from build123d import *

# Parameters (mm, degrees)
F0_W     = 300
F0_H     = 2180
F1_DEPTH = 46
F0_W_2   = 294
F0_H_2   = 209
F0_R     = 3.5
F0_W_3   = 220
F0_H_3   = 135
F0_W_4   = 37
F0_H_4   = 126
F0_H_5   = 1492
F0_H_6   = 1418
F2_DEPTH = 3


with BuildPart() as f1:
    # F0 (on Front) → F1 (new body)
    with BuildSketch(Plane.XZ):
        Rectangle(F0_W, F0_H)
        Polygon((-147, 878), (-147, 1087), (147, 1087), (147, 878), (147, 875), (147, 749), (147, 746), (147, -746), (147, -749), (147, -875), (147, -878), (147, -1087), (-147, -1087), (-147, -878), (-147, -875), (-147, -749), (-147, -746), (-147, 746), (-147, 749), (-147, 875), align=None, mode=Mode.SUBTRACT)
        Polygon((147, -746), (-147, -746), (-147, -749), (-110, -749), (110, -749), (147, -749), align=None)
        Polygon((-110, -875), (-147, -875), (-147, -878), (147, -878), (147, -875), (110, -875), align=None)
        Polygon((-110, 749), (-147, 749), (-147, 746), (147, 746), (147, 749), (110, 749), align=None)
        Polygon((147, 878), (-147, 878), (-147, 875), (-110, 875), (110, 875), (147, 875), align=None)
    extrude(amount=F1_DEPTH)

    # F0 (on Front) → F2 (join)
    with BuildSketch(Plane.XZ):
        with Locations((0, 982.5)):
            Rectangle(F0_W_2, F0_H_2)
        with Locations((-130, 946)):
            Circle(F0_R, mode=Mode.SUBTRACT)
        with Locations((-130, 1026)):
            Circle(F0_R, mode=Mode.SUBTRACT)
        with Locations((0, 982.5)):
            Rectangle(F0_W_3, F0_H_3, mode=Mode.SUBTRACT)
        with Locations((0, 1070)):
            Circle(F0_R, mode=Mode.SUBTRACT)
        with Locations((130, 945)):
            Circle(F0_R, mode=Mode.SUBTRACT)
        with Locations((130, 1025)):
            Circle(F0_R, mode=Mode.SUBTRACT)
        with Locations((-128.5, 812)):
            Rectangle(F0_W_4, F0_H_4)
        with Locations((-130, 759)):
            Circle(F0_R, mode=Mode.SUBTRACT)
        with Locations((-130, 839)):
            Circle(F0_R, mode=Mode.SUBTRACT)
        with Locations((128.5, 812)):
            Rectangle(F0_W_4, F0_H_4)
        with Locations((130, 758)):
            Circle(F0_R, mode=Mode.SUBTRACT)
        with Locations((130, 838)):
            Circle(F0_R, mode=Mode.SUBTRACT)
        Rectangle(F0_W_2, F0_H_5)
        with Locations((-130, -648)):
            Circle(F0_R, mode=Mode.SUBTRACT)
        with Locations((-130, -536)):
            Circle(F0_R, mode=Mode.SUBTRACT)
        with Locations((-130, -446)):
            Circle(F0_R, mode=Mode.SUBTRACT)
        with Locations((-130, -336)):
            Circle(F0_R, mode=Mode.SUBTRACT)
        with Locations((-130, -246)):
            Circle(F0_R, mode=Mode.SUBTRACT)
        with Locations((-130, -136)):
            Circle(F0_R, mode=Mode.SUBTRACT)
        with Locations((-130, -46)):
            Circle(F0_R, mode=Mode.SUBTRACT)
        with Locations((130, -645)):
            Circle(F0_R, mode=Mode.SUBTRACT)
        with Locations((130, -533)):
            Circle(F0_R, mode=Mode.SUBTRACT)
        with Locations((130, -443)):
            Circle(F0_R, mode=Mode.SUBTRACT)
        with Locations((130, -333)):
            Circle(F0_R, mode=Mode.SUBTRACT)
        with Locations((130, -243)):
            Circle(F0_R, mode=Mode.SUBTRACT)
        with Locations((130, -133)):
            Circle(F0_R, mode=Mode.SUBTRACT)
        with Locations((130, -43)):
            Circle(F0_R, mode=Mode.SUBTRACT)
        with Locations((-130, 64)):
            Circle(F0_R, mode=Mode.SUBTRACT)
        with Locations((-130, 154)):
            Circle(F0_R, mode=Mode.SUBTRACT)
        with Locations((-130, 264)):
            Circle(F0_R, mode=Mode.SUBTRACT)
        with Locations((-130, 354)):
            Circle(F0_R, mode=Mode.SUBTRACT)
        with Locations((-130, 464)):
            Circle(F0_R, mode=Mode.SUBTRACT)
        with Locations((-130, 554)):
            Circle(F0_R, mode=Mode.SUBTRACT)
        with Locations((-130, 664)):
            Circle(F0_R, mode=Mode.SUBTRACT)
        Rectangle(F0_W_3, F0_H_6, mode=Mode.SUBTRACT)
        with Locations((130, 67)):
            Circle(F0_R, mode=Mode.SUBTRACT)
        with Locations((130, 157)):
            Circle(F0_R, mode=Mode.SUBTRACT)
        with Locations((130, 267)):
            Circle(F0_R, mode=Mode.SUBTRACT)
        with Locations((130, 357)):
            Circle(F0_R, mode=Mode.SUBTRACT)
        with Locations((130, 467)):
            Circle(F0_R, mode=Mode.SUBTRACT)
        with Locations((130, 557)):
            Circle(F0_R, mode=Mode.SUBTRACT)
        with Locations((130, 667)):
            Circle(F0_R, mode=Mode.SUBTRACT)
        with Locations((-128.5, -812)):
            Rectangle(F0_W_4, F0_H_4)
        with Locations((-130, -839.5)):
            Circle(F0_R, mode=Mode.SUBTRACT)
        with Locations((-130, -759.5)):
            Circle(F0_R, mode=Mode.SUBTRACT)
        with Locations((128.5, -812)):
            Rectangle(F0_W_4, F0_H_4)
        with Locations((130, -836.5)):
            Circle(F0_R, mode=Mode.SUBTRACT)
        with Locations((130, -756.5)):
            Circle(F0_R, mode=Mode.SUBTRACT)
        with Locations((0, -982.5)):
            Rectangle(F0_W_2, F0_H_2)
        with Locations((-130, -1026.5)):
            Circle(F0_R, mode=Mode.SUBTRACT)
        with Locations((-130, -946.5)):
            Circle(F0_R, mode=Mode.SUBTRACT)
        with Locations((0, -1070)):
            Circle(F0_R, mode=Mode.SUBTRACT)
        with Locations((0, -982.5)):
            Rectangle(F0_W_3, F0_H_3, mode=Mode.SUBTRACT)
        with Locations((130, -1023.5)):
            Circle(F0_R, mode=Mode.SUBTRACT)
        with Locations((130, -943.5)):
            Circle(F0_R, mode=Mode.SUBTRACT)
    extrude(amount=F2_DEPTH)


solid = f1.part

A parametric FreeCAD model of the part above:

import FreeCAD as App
import Part
import Sketcher

V = App.Vector

doc = App.newDocument("Part")
body = doc.addObject("PartDesign::Body", "Body")

# Sketch on XZ plane
sketch1 = doc.addObject("Sketcher::SketchObject", "Sketch")
body.addObject(sketch1)
sketch1.AttachmentSupport = (doc.XZ_Plane, [""])
sketch1.MapMode = "FlatFace"
sketch1.addGeometry(Part.LineSegment(V(-150, 1090, 0), V(-150, -1090, 0)), False)
sketch1.addGeometry(Part.LineSegment(V(-150, -1090, 0), V(150, -1090, 0)), False)
sketch1.addGeometry(Part.LineSegment(V(150, -1090, 0), V(150, 1090, 0)), False)
sketch1.addGeometry(Part.LineSegment(V(150, 1090, 0), V(-150, 1090, 0)), False)
sketch1.addGeometry(Part.LineSegment(V(-147, -1087, 0), V(-147, -878, 0)), False)
sketch1.addGeometry(Part.LineSegment(V(-147, -878, 0), V(147, -878, 0)), False)
sketch1.addGeometry(Part.LineSegment(V(147, -878, 0), V(147, -1087, 0)), False)
sketch1.addGeometry(Part.LineSegment(V(147, -1087, 0), V(-147, -1087, 0)), False)
sketch1.addGeometry(Part.LineSegment(V(-147, -875, 0), V(-147, -749, 0)), False)
sketch1.addGeometry(Part.LineSegment(V(-147, -749, 0), V(147, -749, 0)), False)
sketch1.addGeometry(Part.LineSegment(V(147, -749, 0), V(147, -875, 0)), False)
sketch1.addGeometry(Part.LineSegment(V(147, -875, 0), V(-147, -875, 0)), False)
sketch1.addGeometry(Part.LineSegment(V(-147, -746, 0), V(-147, 746, 0)), False)
sketch1.addGeometry(Part.LineSegment(V(-147, 746, 0), V(147, 746, 0)), False)
sketch1.addGeometry(Part.LineSegment(V(147, 746, 0), V(147, -746, 0)), False)
sketch1.addGeometry(Part.LineSegment(V(147, -746, 0), V(-147, -746, 0)), False)
sketch1.addGeometry(Part.LineSegment(V(-147, 749, 0), V(-147, 875, 0)), False)
sketch1.addGeometry(Part.LineSegment(V(-147, 875, 0), V(147, 875, 0)), False)
sketch1.addGeometry(Part.LineSegment(V(147, 875, 0), V(147, 749, 0)), False)
sketch1.addGeometry(Part.LineSegment(V(147, 749, 0), V(-147, 749, 0)), False)
sketch1.addGeometry(Part.LineSegment(V(-147, 878, 0), V(-147, 1087, 0)), False)
sketch1.addGeometry(Part.LineSegment(V(-147, 1087, 0), V(147, 1087, 0)), False)
sketch1.addGeometry(Part.LineSegment(V(147, 1087, 0), V(147, 878, 0)), False)
sketch1.addGeometry(Part.LineSegment(V(147, 878, 0), V(-147, 878, 0)), False)
sketch1.addConstraint(Sketcher.Constraint("Coincident", 0, 2, 1, 1))
sketch1.addConstraint(Sketcher.Constraint("Coincident", 1, 2, 2, 1))
sketch1.addConstraint(Sketcher.Constraint("Coincident", 2, 2, 3, 1))
sketch1.addConstraint(Sketcher.Constraint("Coincident", 3, 2, 0, 1))
sketch1.addConstraint(Sketcher.Constraint("Coincident", 4, 2, 5, 1))
sketch1.addConstraint(Sketcher.Constraint("Coincident", 5, 2, 6, 1))
sketch1.addConstraint(Sketcher.Constraint("Coincident", 6, 2, 7, 1))
sketch1.addConstraint(Sketcher.Constraint("Coincident", 7, 2, 4, 1))
sketch1.addConstraint(Sketcher.Constraint("Coincident", 8, 2, 9, 1))
sketch1.addConstraint(Sketcher.Constraint("Coincident", 9, 2, 10, 1))
sketch1.addConstraint(Sketcher.Constraint("Coincident", 10, 2, 11, 1))
sketch1.addConstraint(Sketcher.Constraint("Coincident", 11, 2, 8, 1))
sketch1.addConstraint(Sketcher.Constraint("Coincident", 12, 2, 13, 1))
sketch1.addConstraint(Sketcher.Constraint("Coincident", 13, 2, 14, 1))
sketch1.addConstraint(Sketcher.Constraint("Coincident", 14, 2, 15, 1))
sketch1.addConstraint(Sketcher.Constraint("Coincident", 15, 2, 12, 1))
sketch1.addConstraint(Sketcher.Constraint("Coincident", 16, 2, 17, 1))
sketch1.addConstraint(Sketcher.Constraint("Coincident", 17, 2, 18, 1))
sketch1.addConstraint(Sketcher.Constraint("Coincident", 18, 2, 19, 1))
sketch1.addConstraint(Sketcher.Constraint("Coincident", 19, 2, 16, 1))
sketch1.addConstraint(Sketcher.Constraint("Coincident", 20, 2, 21, 1))
sketch1.addConstraint(Sketcher.Constraint("Coincident", 21, 2, 22, 1))
sketch1.addConstraint(Sketcher.Constraint("Coincident", 22, 2, 23, 1))
sketch1.addConstraint(Sketcher.Constraint("Coincident", 23, 2, 20, 1))
sketch1.addConstraint(Sketcher.Constraint("Vertical", 0))
sketch1.addConstraint(Sketcher.Constraint("Horizontal", 1))
sketch1.addConstraint(Sketcher.Constraint("Vertical", 2))
sketch1.addConstraint(Sketcher.Constraint("Horizontal", 3))
sketch1.addConstraint(Sketcher.Constraint("Vertical", 4))
sketch1.addConstraint(Sketcher.Constraint("Horizontal", 5))
sketch1.addConstraint(Sketcher.Constraint("Vertical", 6))
sketch1.addConstraint(Sketcher.Constraint("Horizontal", 7))
sketch1.addConstraint(Sketcher.Constraint("Vertical", 8))
sketch1.addConstraint(Sketcher.Constraint("Horizontal", 9))
sketch1.addConstraint(Sketcher.Constraint("Vertical", 10))
sketch1.addConstraint(Sketcher.Constraint("Horizontal", 11))
sketch1.addConstraint(Sketcher.Constraint("Vertical", 12))
sketch1.addConstraint(Sketcher.Constraint("Horizontal", 13))
sketch1.addConstraint(Sketcher.Constraint("Vertical", 14))
sketch1.addConstraint(Sketcher.Constraint("Horizontal", 15))
sketch1.addConstraint(Sketcher.Constraint("Vertical", 16))
sketch1.addConstraint(Sketcher.Constraint("Horizontal", 17))
sketch1.addConstraint(Sketcher.Constraint("Vertical", 18))
sketch1.addConstraint(Sketcher.Constraint("Horizontal", 19))
sketch1.addConstraint(Sketcher.Constraint("Vertical", 20))
sketch1.addConstraint(Sketcher.Constraint("Horizontal", 21))
sketch1.addConstraint(Sketcher.Constraint("Vertical", 22))
sketch1.addConstraint(Sketcher.Constraint("Horizontal", 23))
sketch1.addConstraint(Sketcher.Constraint("Symmetric", 0, 2, 2, 2, -1, 1))
sketch1.addConstraint(Sketcher.Constraint("Symmetric", 12, 2, 14, 2, -1, 1))
sketch1.addConstraint(Sketcher.Constraint("Symmetric", 10, 2, 16, 2, -1, 1))
sketch1.addConstraint(Sketcher.Constraint("Symmetric", 8, 2, 18, 2, -1, 1))
sketch1.addConstraint(Sketcher.Constraint("Symmetric", 6, 2, 20, 2, -1, 1))
sketch1.addConstraint(Sketcher.Constraint("Symmetric", 4, 2, 22, 2, -1, 1))
sketch1.addConstraint(Sketcher.Constraint("Vertical", 7, 2, 8, 2))
sketch1.addConstraint(Sketcher.Constraint("Vertical", 6, 2, 9, 2))
sketch1.addConstraint(Sketcher.Constraint("Vertical", 11, 2, 12, 2))
sketch1.addConstraint(Sketcher.Constraint("Vertical", 10, 2, 13, 2))
sketch1.addConstraint(Sketcher.Constraint("DistanceX", 1, 1, 1, 2, 300.0))
sketch1.addConstraint(Sketcher.Constraint("DistanceX", 5, 1, 5, 2, 294.0))
sketch1.addConstraint(Sketcher.Constraint("DistanceY", 0, 2, 0, 1, 2180.0))
sketch1.addConstraint(Sketcher.Constraint("DistanceY", 4, 1, 4, 2, 209.0))
sketch1.addConstraint(Sketcher.Constraint("DistanceY", 8, 1, 8, 2, 126.0))
sketch1.addConstraint(Sketcher.Constraint("DistanceY", 12, 1, 12, 2, 1492.0))
sketch1.addConstraint(Sketcher.Constraint("DistanceY", 4, 2, -1, 1, 878.0))
sketch1.addConstraint(Sketcher.Constraint("DistanceY", 8, 2, -1, 1, 749.0))
pad1 = doc.addObject("PartDesign::Pad", "Pad")
body.addObject(pad1)
pad1.Profile = sketch1
pad1.Length = 46

# Sketch on XZ plane
sketch2 = doc.addObject("Sketcher::SketchObject", "Sketch001")
body.addObject(sketch2)
sketch2.AttachmentSupport = (doc.XZ_Plane, [""])
sketch2.MapMode = "FlatFace"
sketch2.addGeometry(Part.LineSegment(V(-147, 1087, 0), V(-147, 878, 0)), False)
sketch2.addGeometry(Part.LineSegment(V(-147, 878, 0), V(147, 878, 0)), False)
sketch2.addGeometry(Part.LineSegment(V(147, 878, 0), V(147, 1087, 0)), False)
sketch2.addGeometry(Part.LineSegment(V(147, 1087, 0), V(-147, 1087, 0)), False)
sketch2.addGeometry(Part.Circle(V(-130, 946, 0), V(0, 0, 1), 3.5), False)
sketch2.addGeometry(Part.Circle(V(130, 945, 0), V(0, 0, 1), 3.5), False)
sketch2.addGeometry(Part.LineSegment(V(110, 915, 0), V(-110, 915, 0)), False)
sketch2.addGeometry(Part.LineSegment(V(-110, 915, 0), V(-110, 1050, 0)), False)
sketch2.addGeometry(Part.LineSegment(V(-110, 1050, 0), V(110, 1050, 0)), False)
sketch2.addGeometry(Part.LineSegment(V(110, 1050, 0), V(110, 915, 0)), False)
sketch2.addGeometry(Part.Circle(V(-130, 1026, 0), V(0, 0, 1), 3.5), False)
sketch2.addGeometry(Part.Circle(V(130, 1025, 0), V(0, 0, 1), 3.5), False)
sketch2.addGeometry(Part.Circle(V(0, 1070, 0), V(0, 0, 1), 3.5), False)
sketch2.addGeometry(Part.LineSegment(V(-147, 875, 0), V(-147, 749, 0)), False)
sketch2.addGeometry(Part.LineSegment(V(-147, 749, 0), V(-110, 749, 0)), False)
sketch2.addGeometry(Part.LineSegment(V(-110, 749, 0), V(-110, 875, 0)), False)
sketch2.addGeometry(Part.LineSegment(V(-110, 875, 0), V(-147, 875, 0)), False)
sketch2.addGeometry(Part.Circle(V(-130, 759, 0), V(0, 0, 1), 3.5), False)
sketch2.addGeometry(Part.Circle(V(-130, 839, 0), V(0, 0, 1), 3.5), False)
sketch2.addGeometry(Part.LineSegment(V(110, 875, 0), V(110, 749, 0)), False)
sketch2.addGeometry(Part.LineSegment(V(110, 749, 0), V(147, 749, 0)), False)
sketch2.addGeometry(Part.LineSegment(V(147, 749, 0), V(147, 875, 0)), False)
sketch2.addGeometry(Part.LineSegment(V(147, 875, 0), V(110, 875, 0)), False)
sketch2.addGeometry(Part.Circle(V(130, 758, 0), V(0, 0, 1), 3.5), False)
sketch2.addGeometry(Part.Circle(V(130, 838, 0), V(0, 0, 1), 3.5), False)
sketch2.addGeometry(Part.LineSegment(V(-147, 746, 0), V(-147, -746, 0)), False)
sketch2.addGeometry(Part.LineSegment(V(-147, -746, 0), V(147, -746, 0)), False)
sketch2.addGeometry(Part.LineSegment(V(147, -746, 0), V(147, 746, 0)), False)
sketch2.addGeometry(Part.LineSegment(V(147, 746, 0), V(-147, 746, 0)), False)
sketch2.addGeometry(Part.Circle(V(-130, -648, 0), V(0, 0, 1), 3.5), False)
sketch2.addGeometry(Part.Circle(V(-130, -536, 0), V(0, 0, 1), 3.5), False)
sketch2.addGeometry(Part.Circle(V(-130, -446, 0), V(0, 0, 1), 3.5), False)
sketch2.addGeometry(Part.Circle(V(-130, -336, 0), V(0, 0, 1), 3.5), False)
sketch2.addGeometry(Part.Circle(V(-130, -246, 0), V(0, 0, 1), 3.5), False)
sketch2.addGeometry(Part.Circle(V(-130, -136, 0), V(0, 0, 1), 3.5), False)
sketch2.addGeometry(Part.Circle(V(-130, -46, 0), V(0, 0, 1), 3.5), False)
sketch2.addGeometry(Part.Circle(V(130, -645, 0), V(0, 0, 1), 3.5), False)
sketch2.addGeometry(Part.Circle(V(130, -533, 0), V(0, 0, 1), 3.5), False)
sketch2.addGeometry(Part.Circle(V(130, -443, 0), V(0, 0, 1), 3.5), False)
sketch2.addGeometry(Part.Circle(V(130, -333, 0), V(0, 0, 1), 3.5), False)
sketch2.addGeometry(Part.Circle(V(130, -243, 0), V(0, 0, 1), 3.5), False)
sketch2.addGeometry(Part.Circle(V(130, -133, 0), V(0, 0, 1), 3.5), False)
sketch2.addGeometry(Part.Circle(V(130, -43, 0), V(0, 0, 1), 3.5), False)
sketch2.addGeometry(Part.Circle(V(-130, 64, 0), V(0, 0, 1), 3.5), False)
sketch2.addGeometry(Part.Circle(V(-130, 154, 0), V(0, 0, 1), 3.5), False)
sketch2.addGeometry(Part.Circle(V(-130, 264, 0), V(0, 0, 1), 3.5), False)
sketch2.addGeometry(Part.Circle(V(-130, 354, 0), V(0, 0, 1), 3.5), False)
sketch2.addGeometry(Part.Circle(V(-130, 464, 0), V(0, 0, 1), 3.5), False)
sketch2.addGeometry(Part.Circle(V(-130, 554, 0), V(0, 0, 1), 3.5), False)
sketch2.addGeometry(Part.Circle(V(-130, 664, 0), V(0, 0, 1), 3.5), False)
sketch2.addGeometry(Part.LineSegment(V(110, -709, 0), V(-110, -709, 0)), False)
sketch2.addGeometry(Part.LineSegment(V(-110, -709, 0), V(-110, 709, 0)), False)
sketch2.addGeometry(Part.LineSegment(V(-110, 709, 0), V(110, 709, 0)), False)
sketch2.addGeometry(Part.LineSegment(V(110, 709, 0), V(110, -709, 0)), False)
sketch2.addGeometry(Part.Circle(V(130, 67, 0), V(0, 0, 1), 3.5), False)
sketch2.addGeometry(Part.Circle(V(130, 157, 0), V(0, 0, 1), 3.5), False)
sketch2.addGeometry(Part.Circle(V(130, 267, 0), V(0, 0, 1), 3.5), False)
sketch2.addGeometry(Part.Circle(V(130, 357, 0), V(0, 0, 1), 3.5), False)
sketch2.addGeometry(Part.Circle(V(130, 467, 0), V(0, 0, 1), 3.5), False)
sketch2.addGeometry(Part.Circle(V(130, 557, 0), V(0, 0, 1), 3.5), False)
sketch2.addGeometry(Part.Circle(V(130, 667, 0), V(0, 0, 1), 3.5), False)
sketch2.addGeometry(Part.LineSegment(V(-147, -749, 0), V(-147, -875, 0)), False)
sketch2.addGeometry(Part.LineSegment(V(-147, -875, 0), V(-110, -875, 0)), False)
sketch2.addGeometry(Part.LineSegment(V(-110, -875, 0), V(-110, -749, 0)), False)
sketch2.addGeometry(Part.LineSegment(V(-110, -749, 0), V(-147, -749, 0)), False)
sketch2.addGeometry(Part.Circle(V(-130, -839.5, 0), V(0, 0, 1), 3.5), False)
sketch2.addGeometry(Part.Circle(V(-130, -759.5, 0), V(0, 0, 1), 3.5), False)
sketch2.addGeometry(Part.LineSegment(V(110, -749, 0), V(110, -875, 0)), False)
sketch2.addGeometry(Part.LineSegment(V(110, -875, 0), V(147, -875, 0)), False)
sketch2.addGeometry(Part.LineSegment(V(147, -875, 0), V(147, -749, 0)), False)
sketch2.addGeometry(Part.LineSegment(V(147, -749, 0), V(110, -749, 0)), False)
sketch2.addGeometry(Part.Circle(V(130, -836.5, 0), V(0, 0, 1), 3.5), False)
sketch2.addGeometry(Part.Circle(V(130, -756.5, 0), V(0, 0, 1), 3.5), False)
sketch2.addGeometry(Part.LineSegment(V(-147, -878, 0), V(-147, -1087, 0)), False)
sketch2.addGeometry(Part.LineSegment(V(-147, -1087, 0), V(147, -1087, 0)), False)
sketch2.addGeometry(Part.LineSegment(V(147, -1087, 0), V(147, -878, 0)), False)
sketch2.addGeometry(Part.LineSegment(V(147, -878, 0), V(-147, -878, 0)), False)
sketch2.addGeometry(Part.Circle(V(-130, -1026.5, 0), V(0, 0, 1), 3.5), False)
sketch2.addGeometry(Part.Circle(V(0, -1070, 0), V(0, 0, 1), 3.5), False)
sketch2.addGeometry(Part.Circle(V(130, -1023.5, 0), V(0, 0, 1), 3.5), False)
sketch2.addGeometry(Part.Circle(V(-130, -946.5, 0), V(0, 0, 1), 3.5), False)
sketch2.addGeometry(Part.LineSegment(V(110, -1050, 0), V(-110, -1050, 0)), False)
sketch2.addGeometry(Part.LineSegment(V(-110, -1050, 0), V(-110, -915, 0)), False)
sketch2.addGeometry(Part.LineSegment(V(-110, -915, 0), V(110, -915, 0)), False)
sketch2.addGeometry(Part.LineSegment(V(110, -915, 0), V(110, -1050, 0)), False)
sketch2.addGeometry(Part.Circle(V(130, -943.5, 0), V(0, 0, 1), 3.5), False)
sketch2.addConstraint(Sketcher.Constraint("Coincident", 0, 2, 1, 1))
sketch2.addConstraint(Sketcher.Constraint("Coincident", 1, 2, 2, 1))
sketch2.addConstraint(Sketcher.Constraint("Coincident", 2, 2, 3, 1))
sketch2.addConstraint(Sketcher.Constraint("Coincident", 3, 2, 0, 1))
sketch2.addConstraint(Sketcher.Constraint("Coincident", 6, 2, 7, 1))
sketch2.addConstraint(Sketcher.Constraint("Coincident", 7, 2, 8, 1))
sketch2.addConstraint(Sketcher.Constraint("Coincident", 8, 2, 9, 1))
sketch2.addConstraint(Sketcher.Constraint("Coincident", 9, 2, 6, 1))
sketch2.addConstraint(Sketcher.Constraint("Coincident", 13, 2, 14, 1))
sketch2.addConstraint(Sketcher.Constraint("Coincident", 14, 2, 15, 1))
sketch2.addConstraint(Sketcher.Constraint("Coincident", 15, 2, 16, 1))
sketch2.addConstraint(Sketcher.Constraint("Coincident", 16, 2, 13, 1))
sketch2.addConstraint(Sketcher.Constraint("Coincident", 19, 2, 20, 1))
sketch2.addConstraint(Sketcher.Constraint("Coincident", 20, 2, 21, 1))
sketch2.addConstraint(Sketcher.Constraint("Coincident", 21, 2, 22, 1))
sketch2.addConstraint(Sketcher.Constraint("Coincident", 22, 2, 19, 1))
sketch2.addConstraint(Sketcher.Constraint("Coincident", 25, 2, 26, 1))
sketch2.addConstraint(Sketcher.Constraint("Coincident", 26, 2, 27, 1))
sketch2.addConstraint(Sketcher.Constraint("Coincident", 27, 2, 28, 1))
sketch2.addConstraint(Sketcher.Constraint("Coincident", 28, 2, 25, 1))
sketch2.addConstraint(Sketcher.Constraint("Coincident", 50, 2, 51, 1))
sketch2.addConstraint(Sketcher.Constraint("Coincident", 51, 2, 52, 1))
sketch2.addConstraint(Sketcher.Constraint("Coincident", 52, 2, 53, 1))
sketch2.addConstraint(Sketcher.Constraint("Coincident", 53, 2, 50, 1))
sketch2.addConstraint(Sketcher.Constraint("Coincident", 61, 2, 62, 1))
sketch2.addConstraint(Sketcher.Constraint("Coincident", 62, 2, 63, 1))
sketch2.addConstraint(Sketcher.Constraint("Coincident", 63, 2, 64, 1))
sketch2.addConstraint(Sketcher.Constraint("Coincident", 64, 2, 61, 1))
sketch2.addConstraint(Sketcher.Constraint("Coincident", 67, 2, 68, 1))
sketch2.addConstraint(Sketcher.Constraint("Coincident", 68, 2, 69, 1))
sketch2.addConstraint(Sketcher.Constraint("Coincident", 69, 2, 70, 1))
sketch2.addConstraint(Sketcher.Constraint("Coincident", 70, 2, 67, 1))
sketch2.addConstraint(Sketcher.Constraint("Coincident", 73, 2, 74, 1))
sketch2.addConstraint(Sketcher.Constraint("Coincident", 74, 2, 75, 1))
sketch2.addConstraint(Sketcher.Constraint("Coincident", 75, 2, 76, 1))
sketch2.addConstraint(Sketcher.Constraint("Coincident", 76, 2, 73, 1))
sketch2.addConstraint(Sketcher.Constraint("Coincident", 81, 2, 82, 1))
sketch2.addConstraint(Sketcher.Constraint("Coincident", 82, 2, 83, 1))
sketch2.addConstraint(Sketcher.Constraint("Coincident", 83, 2, 84, 1))
sketch2.addConstraint(Sketcher.Constraint("Coincident", 84, 2, 81, 1))
sketch2.addConstraint(Sketcher.Constraint("Vertical", 0))
sketch2.addConstraint(Sketcher.Constraint("Horizontal", 1))
sketch2.addConstraint(Sketcher.Constraint("Vertical", 2))
sketch2.addConstraint(Sketcher.Constraint("Horizontal", 3))
sketch2.addConstraint(Sketcher.Constraint("Horizontal", 6))
sketch2.addConstraint(Sketcher.Constraint("Vertical", 7))
sketch2.addConstraint(Sketcher.Constraint("Horizontal", 8))
sketch2.addConstraint(Sketcher.Constraint("Vertical", 9))
sketch2.addConstraint(Sketcher.Constraint("Vertical", 13))
sketch2.addConstraint(Sketcher.Constraint("Horizontal", 14))
sketch2.addConstraint(Sketcher.Constraint("Vertical", 15))
sketch2.addConstraint(Sketcher.Constraint("Horizontal", 16))
sketch2.addConstraint(Sketcher.Constraint("Vertical", 19))
sketch2.addConstraint(Sketcher.Constraint("Horizontal", 20))
sketch2.addConstraint(Sketcher.Constraint("Vertical", 21))
sketch2.addConstraint(Sketcher.Constraint("Horizontal", 22))
sketch2.addConstraint(Sketcher.Constraint("Vertical", 25))
sketch2.addConstraint(Sketcher.Constraint("Horizontal", 26))
sketch2.addConstraint(Sketcher.Constraint("Vertical", 27))
sketch2.addConstraint(Sketcher.Constraint("Horizontal", 28))
sketch2.addConstraint(Sketcher.Constraint("Horizontal", 50))
sketch2.addConstraint(Sketcher.Constraint("Vertical", 51))
sketch2.addConstraint(Sketcher.Constraint("Horizontal", 52))
sketch2.addConstraint(Sketcher.Constraint("Vertical", 53))
sketch2.addConstraint(Sketcher.Constraint("Vertical", 61))
sketch2.addConstraint(Sketcher.Constraint("Horizontal", 62))
sketch2.addConstraint(Sketcher.Constraint("Vertical", 63))
sketch2.addConstraint(Sketcher.Constraint("Horizontal", 64))
sketch2.addConstraint(Sketcher.Constraint("Vertical", 67))
sketch2.addConstraint(Sketcher.Constraint("Horizontal", 68))
sketch2.addConstraint(Sketcher.Constraint("Vertical", 69))
sketch2.addConstraint(Sketcher.Constraint("Horizontal", 70))
sketch2.addConstraint(Sketcher.Constraint("Vertical", 73))
sketch2.addConstraint(Sketcher.Constraint("Horizontal", 74))
sketch2.addConstraint(Sketcher.Constraint("Vertical", 75))
sketch2.addConstraint(Sketcher.Constraint("Horizontal", 76))
sketch2.addConstraint(Sketcher.Constraint("Horizontal", 81))
sketch2.addConstraint(Sketcher.Constraint("Vertical", 82))
sketch2.addConstraint(Sketcher.Constraint("Horizontal", 83))
sketch2.addConstraint(Sketcher.Constraint("Vertical", 84))
sketch2.addConstraint(Sketcher.Constraint("Equal", 4, 5))
sketch2.addConstraint(Sketcher.Constraint("Equal", 5, 10))
sketch2.addConstraint(Sketcher.Constraint("Equal", 10, 11))
sketch2.addConstraint(Sketcher.Constraint("Equal", 11, 12))
sketch2.addConstraint(Sketcher.Constraint("Equal", 12, 17))
sketch2.addConstraint(Sketcher.Constraint("Equal", 17, 18))
sketch2.addConstraint(Sketcher.Constraint("Equal", 18, 23))
sketch2.addConstraint(Sketcher.Constraint("Equal", 23, 24))
sketch2.addConstraint(Sketcher.Constraint("Equal", 24, 29))
sketch2.addConstraint(Sketcher.Constraint("Equal", 29, 30))
sketch2.addConstraint(Sketcher.Constraint("Equal", 30, 31))
sketch2.addConstraint(Sketcher.Constraint("Equal", 31, 32))
sketch2.addConstraint(Sketcher.Constraint("Equal", 32, 33))
sketch2.addConstraint(Sketcher.Constraint("Equal", 33, 34))
sketch2.addConstraint(Sketcher.Constraint("Equal", 34, 35))
sketch2.addConstraint(Sketcher.Constraint("Equal", 35, 36))
sketch2.addConstraint(Sketcher.Constraint("Equal", 36, 37))
sketch2.addConstraint(Sketcher.Constraint("Equal", 37, 38))
sketch2.addConstraint(Sketcher.Constraint("Equal", 38, 39))
sketch2.addConstraint(Sketcher.Constraint("Equal", 39, 40))
sketch2.addConstraint(Sketcher.Constraint("Equal", 40, 41))
sketch2.addConstraint(Sketcher.Constraint("Equal", 41, 42))
sketch2.addConstraint(Sketcher.Constraint("Equal", 42, 43))
sketch2.addConstraint(Sketcher.Constraint("Equal", 43, 44))
sketch2.addConstraint(Sketcher.Constraint("Equal", 44, 45))
sketch2.addConstraint(Sketcher.Constraint("Equal", 45, 46))
sketch2.addConstraint(Sketcher.Constraint("Equal", 46, 47))
sketch2.addConstraint(Sketcher.Constraint("Equal", 47, 48))
sketch2.addConstraint(Sketcher.Constraint("Equal", 48, 49))
sketch2.addConstraint(Sketcher.Constraint("Equal", 49, 54))
sketch2.addConstraint(Sketcher.Constraint("Equal", 54, 55))
sketch2.addConstraint(Sketcher.Constraint("Equal", 55, 56))
sketch2.addConstraint(Sketcher.Constraint("Equal", 56, 57))
sketch2.addConstraint(Sketcher.Constraint("Equal", 57, 58))
sketch2.addConstraint(Sketcher.Constraint("Equal", 58, 59))
sketch2.addConstraint(Sketcher.Constraint("Equal", 59, 60))
sketch2.addConstraint(Sketcher.Constraint("Equal", 60, 65))
sketch2.addConstraint(Sketcher.Constraint("Equal", 65, 66))
sketch2.addConstraint(Sketcher.Constraint("Equal", 66, 71))
sketch2.addConstraint(Sketcher.Constraint("Equal", 71, 72))
sketch2.addConstraint(Sketcher.Constraint("Equal", 72, 77))
sketch2.addConstraint(Sketcher.Constraint("Equal", 77, 78))
sketch2.addConstraint(Sketcher.Constraint("Equal", 78, 79))
sketch2.addConstraint(Sketcher.Constraint("Equal", 79, 80))
sketch2.addConstraint(Sketcher.Constraint("Equal", 80, 85))
sketch2.addConstraint(Sketcher.Constraint("Symmetric", 12, 3, 78, 3, -1, 1))
sketch2.addConstraint(Sketcher.Constraint("Symmetric", 25, 2, 27, 2, -1, 1))
sketch2.addConstraint(Sketcher.Constraint("Symmetric", 50, 2, 52, 2, -1, 1))
sketch2.addConstraint(Sketcher.Constraint("Symmetric", 21, 2, 61, 2, -1, 1))
sketch2.addConstraint(Sketcher.Constraint("Symmetric", 19, 2, 63, 2, -1, 1))
sketch2.addConstraint(Sketcher.Constraint("Symmetric", 15, 2, 67, 2, -1, 1))
sketch2.addConstraint(Sketcher.Constraint("Symmetric", 13, 2, 69, 2, -1, 1))
sketch2.addConstraint(Sketcher.Constraint("Symmetric", 2, 2, 73, 2, -1, 1))
sketch2.addConstraint(Sketcher.Constraint("Symmetric", 0, 2, 75, 2, -1, 1))
sketch2.addConstraint(Sketcher.Constraint("Symmetric", 8, 2, 81, 2, -1, 1))
sketch2.addConstraint(Sketcher.Constraint("Symmetric", 6, 2, 83, 2, -1, 1))
sketch2.addConstraint(Sketcher.Constraint("Symmetric", 14, 2, 19, 2, -2))
sketch2.addConstraint(Sketcher.Constraint("Symmetric", 16, 2, 21, 2, -2))
sketch2.addConstraint(Sketcher.Constraint("PointOnObject", 12, 3, -2))
sketch2.addConstraint(Sketcher.Constraint("Vertical", 4, 3, 10, 3))
sketch2.addConstraint(Sketcher.Constraint("Vertical", 5, 3, 11, 3))
sketch2.addConstraint(Sketcher.Constraint("Vertical", 10, 3, 17, 3))
sketch2.addConstraint(Sketcher.Constraint("Vertical", 17, 3, 18, 3))
sketch2.addConstraint(Sketcher.Constraint("Vertical", 11, 3, 23, 3))
sketch2.addConstraint(Sketcher.Constraint("Vertical", 23, 3, 24, 3))
sketch2.addConstraint(Sketcher.Constraint("Vertical", 18, 3, 29, 3))
sketch2.addConstraint(Sketcher.Constraint("Vertical", 29, 3, 30, 3))
sketch2.addConstraint(Sketcher.Constraint("Vertical", 30, 3, 31, 3))
sketch2.addConstraint(Sketcher.Constraint("Vertical", 31, 3, 32, 3))
sketch2.addConstraint(Sketcher.Constraint("Vertical", 32, 3, 33, 3))
sketch2.addConstraint(Sketcher.Constraint("Vertical", 33, 3, 34, 3))
sketch2.addConstraint(Sketcher.Constraint("Vertical", 34, 3, 35, 3))
sketch2.addConstraint(Sketcher.Constraint("Vertical", 24, 3, 36, 3))
sketch2.addConstraint(Sketcher.Constraint("Vertical", 36, 3, 37, 3))
sketch2.addConstraint(Sketcher.Constraint("Vertical", 37, 3, 38, 3))
sketch2.addConstraint(Sketcher.Constraint("Vertical", 38, 3, 39, 3))
sketch2.addConstraint(Sketcher.Constraint("Vertical", 39, 3, 40, 3))
sketch2.addConstraint(Sketcher.Constraint("Vertical", 40, 3, 41, 3))
sketch2.addConstraint(Sketcher.Constraint("Vertical", 41, 3, 42, 3))
sketch2.addConstraint(Sketcher.Constraint("Vertical", 35, 3, 43, 3))
sketch2.addConstraint(Sketcher.Constraint("Vertical", 43, 3, 44, 3))
sketch2.addConstraint(Sketcher.Constraint("Vertical", 44, 3, 45, 3))
sketch2.addConstraint(Sketcher.Constraint("Vertical", 45, 3, 46, 3))
sketch2.addConstraint(Sketcher.Constraint("Vertical", 46, 3, 47, 3))
sketch2.addConstraint(Sketcher.Constraint("Vertical", 47, 3, 48, 3))
sketch2.addConstraint(Sketcher.Constraint("Vertical", 48, 3, 49, 3))
sketch2.addConstraint(Sketcher.Constraint("Vertical", 42, 3, 54, 3))
sketch2.addConstraint(Sketcher.Constraint("Vertical", 54, 3, 55, 3))
sketch2.addConstraint(Sketcher.Constraint("Vertical", 55, 3, 56, 3))
sketch2.addConstraint(Sketcher.Constraint("Vertical", 56, 3, 57, 3))
sketch2.addConstraint(Sketcher.Constraint("Vertical", 57, 3, 58, 3))
sketch2.addConstraint(Sketcher.Constraint("Vertical", 58, 3, 59, 3))
sketch2.addConstraint(Sketcher.Constraint("Vertical", 59, 3, 60, 3))
sketch2.addConstraint(Sketcher.Constraint("Vertical", 49, 3, 65, 3))
sketch2.addConstraint(Sketcher.Constraint("Vertical", 65, 3, 66, 3))
sketch2.addConstraint(Sketcher.Constraint("Vertical", 60, 3, 71, 3))
sketch2.addConstraint(Sketcher.Constraint("Vertical", 71, 3, 72, 3))
sketch2.addConstraint(Sketcher.Constraint("Vertical", 66, 3, 77, 3))
sketch2.addConstraint(Sketcher.Constraint("Vertical", 72, 3, 79, 3))
sketch2.addConstraint(Sketcher.Constraint("Vertical", 77, 3, 80, 3))
sketch2.addConstraint(Sketcher.Constraint("Vertical", 79, 3, 85, 3))
sketch2.addConstraint(Sketcher.Constraint("Vertical", 3, 2, 13, 2))
sketch2.addConstraint(Sketcher.Constraint("Vertical", 7, 2, 14, 2))
sketch2.addConstraint(Sketcher.Constraint("Vertical", 9, 2, 19, 2))
sketch2.addConstraint(Sketcher.Constraint("Vertical", 2, 2, 20, 2))
sketch2.addConstraint(Sketcher.Constraint("Vertical", 16, 2, 25, 2))
sketch2.addConstraint(Sketcher.Constraint("Vertical", 15, 2, 50, 2))
sketch2.addConstraint(Sketcher.Constraint("Diameter", 4, 7.0))
sketch2.addConstraint(Sketcher.Constraint("DistanceX", 1, 1, 1, 2, 294.0))
sketch2.addConstraint(Sketcher.Constraint("DistanceX", 6, 2, 6, 1, 220.0))
sketch2.addConstraint(Sketcher.Constraint("DistanceY", 0, 2, 0, 1, 209.0))
sketch2.addConstraint(Sketcher.Constraint("DistanceY", 7, 1, 7, 2, 135.0))
sketch2.addConstraint(Sketcher.Constraint("DistanceY", 13, 2, 13, 1, 126.0))
sketch2.addConstraint(Sketcher.Constraint("DistanceY", 25, 2, 25, 1, 1492.0))
sketch2.addConstraint(Sketcher.Constraint("DistanceY", 51, 1, 51, 2, 1418.0))
sketch2.addConstraint(Sketcher.Constraint("DistanceX", 4, 3, -1, 1, 130.0))
sketch2.addConstraint(Sketcher.Constraint("DistanceY", -1, 1, 4, 3, 946.0))
sketch2.addConstraint(Sketcher.Constraint("DistanceX", -1, 1, 5, 3, 130.0))
sketch2.addConstraint(Sketcher.Constraint("DistanceY", -1, 1, 5, 3, 945.0))
sketch2.addConstraint(Sketcher.Constraint("DistanceY", -1, 1, 10, 3, 1026.0))
sketch2.addConstraint(Sketcher.Constraint("DistanceY", -1, 1, 11, 3, 1025.0))
sketch2.addConstraint(Sketcher.Constraint("DistanceY", -1, 1, 12, 3, 1070.0))
sketch2.addConstraint(Sketcher.Constraint("DistanceY", -1, 1, 17, 3, 759.0))
sketch2.addConstraint(Sketcher.Constraint("DistanceY", -1, 1, 18, 3, 839.0))
sketch2.addConstraint(Sketcher.Constraint("DistanceY", -1, 1, 23, 3, 758.0))
sketch2.addConstraint(Sketcher.Constraint("DistanceY", -1, 1, 24, 3, 838.0))
sketch2.addConstraint(Sketcher.Constraint("DistanceY", 29, 3, -1, 1, 648.0))
sketch2.addConstraint(Sketcher.Constraint("DistanceY", 30, 3, -1, 1, 536.0))
sketch2.addConstraint(Sketcher.Constraint("DistanceY", 31, 3, -1, 1, 446.0))
sketch2.addConstraint(Sketcher.Constraint("DistanceY", 32, 3, -1, 1, 336.0))
sketch2.addConstraint(Sketcher.Constraint("DistanceY", 33, 3, -1, 1, 246.0))
sketch2.addConstraint(Sketcher.Constraint("DistanceY", 34, 3, -1, 1, 136.0))
sketch2.addConstraint(Sketcher.Constraint("DistanceY", 35, 3, -1, 1, 46.0))
sketch2.addConstraint(Sketcher.Constraint("DistanceY", 36, 3, -1, 1, 645.0))
sketch2.addConstraint(Sketcher.Constraint("DistanceY", 37, 3, -1, 1, 533.0))
sketch2.addConstraint(Sketcher.Constraint("DistanceY", 38, 3, -1, 1, 443.0))
sketch2.addConstraint(Sketcher.Constraint("DistanceY", 39, 3, -1, 1, 333.0))
sketch2.addConstraint(Sketcher.Constraint("DistanceY", 40, 3, -1, 1, 243.0))
sketch2.addConstraint(Sketcher.Constraint("DistanceY", 41, 3, -1, 1, 133.0))
sketch2.addConstraint(Sketcher.Constraint("DistanceY", 42, 3, -1, 1, 43.0))
sketch2.addConstraint(Sketcher.Constraint("DistanceY", -1, 1, 43, 3, 64.0))
sketch2.addConstraint(Sketcher.Constraint("DistanceY", -1, 1, 44, 3, 154.0))
sketch2.addConstraint(Sketcher.Constraint("DistanceY", -1, 1, 45, 3, 264.0))
sketch2.addConstraint(Sketcher.Constraint("DistanceY", -1, 1, 46, 3, 354.0))
sketch2.addConstraint(Sketcher.Constraint("DistanceY", -1, 1, 47, 3, 464.0))
sketch2.addConstraint(Sketcher.Constraint("DistanceY", -1, 1, 48, 3, 554.0))
sketch2.addConstraint(Sketcher.Constraint("DistanceY", -1, 1, 49, 3, 664.0))
sketch2.addConstraint(Sketcher.Constraint("DistanceY", -1, 1, 54, 3, 67.0))
sketch2.addConstraint(Sketcher.Constraint("DistanceY", -1, 1, 55, 3, 157.0))
sketch2.addConstraint(Sketcher.Constraint("DistanceY", -1, 1, 56, 3, 267.0))
sketch2.addConstraint(Sketcher.Constraint("DistanceY", -1, 1, 57, 3, 357.0))
sketch2.addConstraint(Sketcher.Constraint("DistanceY", -1, 1, 58, 3, 467.0))
sketch2.addConstraint(Sketcher.Constraint("DistanceY", -1, 1, 59, 3, 557.0))
sketch2.addConstraint(Sketcher.Constraint("DistanceY", -1, 1, 60, 3, 667.0))
sketch2.addConstraint(Sketcher.Constraint("DistanceY", -1, 1, 0, 2, 878.0))
sketch2.addConstraint(Sketcher.Constraint("DistanceY", -1, 1, 6, 2, 915.0))
sketch2.addConstraint(Sketcher.Constraint("DistanceY", -1, 1, 13, 2, 749.0))
sketch2.addConstraint(Sketcher.Constraint("DistanceY", 65, 3, -1, 1, 839.5))
sketch2.addConstraint(Sketcher.Constraint("DistanceY", 66, 3, -1, 1, 759.5))
sketch2.addConstraint(Sketcher.Constraint("DistanceY", 71, 3, -1, 1, 836.5))
sketch2.addConstraint(Sketcher.Constraint("DistanceY", 72, 3, -1, 1, 756.5))
sketch2.addConstraint(Sketcher.Constraint("DistanceY", 77, 3, -1, 1, 1026.5))
sketch2.addConstraint(Sketcher.Constraint("DistanceY", 79, 3, -1, 1, 1023.5))
sketch2.addConstraint(Sketcher.Constraint("DistanceY", 80, 3, -1, 1, 946.5))
sketch2.addConstraint(Sketcher.Constraint("DistanceY", 85, 3, -1, 1, 943.5))
pad2 = doc.addObject("PartDesign::Pad", "Pad001")
body.addObject(pad2)
pad2.Profile = sketch2
pad2.Length = 3

doc.recompute()
